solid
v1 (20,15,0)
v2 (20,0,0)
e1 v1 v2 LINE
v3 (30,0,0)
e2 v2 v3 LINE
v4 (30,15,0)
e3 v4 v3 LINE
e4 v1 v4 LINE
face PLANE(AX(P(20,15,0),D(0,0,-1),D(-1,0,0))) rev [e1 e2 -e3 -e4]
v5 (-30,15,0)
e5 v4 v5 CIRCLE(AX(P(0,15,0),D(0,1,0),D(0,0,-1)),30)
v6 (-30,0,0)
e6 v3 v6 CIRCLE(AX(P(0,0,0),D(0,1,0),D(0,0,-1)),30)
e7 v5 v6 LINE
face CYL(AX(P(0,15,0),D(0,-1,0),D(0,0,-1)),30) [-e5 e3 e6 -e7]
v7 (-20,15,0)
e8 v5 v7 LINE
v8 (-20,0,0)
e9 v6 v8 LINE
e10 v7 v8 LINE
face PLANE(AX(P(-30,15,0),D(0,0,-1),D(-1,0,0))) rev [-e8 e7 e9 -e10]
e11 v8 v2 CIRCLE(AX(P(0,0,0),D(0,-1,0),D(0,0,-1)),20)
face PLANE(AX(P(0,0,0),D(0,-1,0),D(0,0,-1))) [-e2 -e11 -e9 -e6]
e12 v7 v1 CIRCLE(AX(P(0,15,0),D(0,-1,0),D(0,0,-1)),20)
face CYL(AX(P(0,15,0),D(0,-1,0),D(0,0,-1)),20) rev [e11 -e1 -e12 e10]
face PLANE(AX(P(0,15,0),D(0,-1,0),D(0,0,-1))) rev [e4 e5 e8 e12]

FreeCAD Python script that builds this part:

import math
import FreeCAD as App
import Part
import Sketcher

doc = App.newDocument("Part")
params = doc.addObject("Spreadsheet::Sheet", "Params")
for row, (alias, value) in enumerate([
    ("sketch1_radius", "20 mm"),
    ("sketch1_radius2", "30 mm"),
    ("pad1_length", "15 mm"),
], start=1):
    params.set(f"A{row}", alias)
    params.set(f"B{row}", "=" + value)
    params.setAlias(f"B{row}", alias)

body = doc.addObject("PartDesign::Body", "Body")

sketch1 = doc.addObject("Sketcher::SketchObject", "Sketch")
body.addObject(sketch1)
sketch1.AttachmentSupport = (doc.XZ_Plane, [""])
sketch1.MapMode = "FlatFace"
sketch1.addGeometry([
    Part.LineSegment(App.Vector(-30, 0, 0), App.Vector(-20, 0, 0)),
    Part.ArcOfCircle(Part.Circle(App.Vector(0, 0, 0), App.Vector(0, 0, 1), 20), math.radians(180), math.radians(360)),
    Part.LineSegment(App.Vector(20, 0, 0), App.Vector(30, 0, 0)),
    Part.ArcOfCircle(Part.Circle(App.Vector(0, 0, 0), App.Vector(0, 0, 1), 30), math.radians(180), math.radians(360)),
], False)
sketch1.addConstraint([
    Sketcher.Constraint("Coincident", 0, 2, 1, 1),
    Sketcher.Constraint("Coincident", 1, 2, 2, 1),
    Sketcher.Constraint("Coincident", 2, 2, 3, 2),
    Sketcher.Constraint("Coincident", 3, 1, 0, 1),
    Sketcher.Constraint("Horizontal", 0),
    Sketcher.Constraint("Horizontal", 2),
    Sketcher.Constraint("Coincident", 1, 3, -1, 1),
    Sketcher.Constraint("Coincident", 3, 3, -1, 1),
    Sketcher.Constraint("PointOnObject", 0, 2, -1),
    Sketcher.Constraint("PointOnObject", 1, 2, -1),
    Sketcher.Constraint("Radius", 1, 20.0),
    Sketcher.Constraint("Radius", 3, 30.0),
])
sketch1.setExpression("Constraints[10]", "Params.sketch1_radius")
sketch1.setExpression("Constraints[11]", "Params.sketch1_radius2")
pad1 = doc.addObject("PartDesign::Pad", "Pad")
body.addObject(pad1)
pad1.Profile = sketch1
pad1.setExpression("Length", "Params.pad1_length")
pad1.Reversed = True

doc.recompute()
